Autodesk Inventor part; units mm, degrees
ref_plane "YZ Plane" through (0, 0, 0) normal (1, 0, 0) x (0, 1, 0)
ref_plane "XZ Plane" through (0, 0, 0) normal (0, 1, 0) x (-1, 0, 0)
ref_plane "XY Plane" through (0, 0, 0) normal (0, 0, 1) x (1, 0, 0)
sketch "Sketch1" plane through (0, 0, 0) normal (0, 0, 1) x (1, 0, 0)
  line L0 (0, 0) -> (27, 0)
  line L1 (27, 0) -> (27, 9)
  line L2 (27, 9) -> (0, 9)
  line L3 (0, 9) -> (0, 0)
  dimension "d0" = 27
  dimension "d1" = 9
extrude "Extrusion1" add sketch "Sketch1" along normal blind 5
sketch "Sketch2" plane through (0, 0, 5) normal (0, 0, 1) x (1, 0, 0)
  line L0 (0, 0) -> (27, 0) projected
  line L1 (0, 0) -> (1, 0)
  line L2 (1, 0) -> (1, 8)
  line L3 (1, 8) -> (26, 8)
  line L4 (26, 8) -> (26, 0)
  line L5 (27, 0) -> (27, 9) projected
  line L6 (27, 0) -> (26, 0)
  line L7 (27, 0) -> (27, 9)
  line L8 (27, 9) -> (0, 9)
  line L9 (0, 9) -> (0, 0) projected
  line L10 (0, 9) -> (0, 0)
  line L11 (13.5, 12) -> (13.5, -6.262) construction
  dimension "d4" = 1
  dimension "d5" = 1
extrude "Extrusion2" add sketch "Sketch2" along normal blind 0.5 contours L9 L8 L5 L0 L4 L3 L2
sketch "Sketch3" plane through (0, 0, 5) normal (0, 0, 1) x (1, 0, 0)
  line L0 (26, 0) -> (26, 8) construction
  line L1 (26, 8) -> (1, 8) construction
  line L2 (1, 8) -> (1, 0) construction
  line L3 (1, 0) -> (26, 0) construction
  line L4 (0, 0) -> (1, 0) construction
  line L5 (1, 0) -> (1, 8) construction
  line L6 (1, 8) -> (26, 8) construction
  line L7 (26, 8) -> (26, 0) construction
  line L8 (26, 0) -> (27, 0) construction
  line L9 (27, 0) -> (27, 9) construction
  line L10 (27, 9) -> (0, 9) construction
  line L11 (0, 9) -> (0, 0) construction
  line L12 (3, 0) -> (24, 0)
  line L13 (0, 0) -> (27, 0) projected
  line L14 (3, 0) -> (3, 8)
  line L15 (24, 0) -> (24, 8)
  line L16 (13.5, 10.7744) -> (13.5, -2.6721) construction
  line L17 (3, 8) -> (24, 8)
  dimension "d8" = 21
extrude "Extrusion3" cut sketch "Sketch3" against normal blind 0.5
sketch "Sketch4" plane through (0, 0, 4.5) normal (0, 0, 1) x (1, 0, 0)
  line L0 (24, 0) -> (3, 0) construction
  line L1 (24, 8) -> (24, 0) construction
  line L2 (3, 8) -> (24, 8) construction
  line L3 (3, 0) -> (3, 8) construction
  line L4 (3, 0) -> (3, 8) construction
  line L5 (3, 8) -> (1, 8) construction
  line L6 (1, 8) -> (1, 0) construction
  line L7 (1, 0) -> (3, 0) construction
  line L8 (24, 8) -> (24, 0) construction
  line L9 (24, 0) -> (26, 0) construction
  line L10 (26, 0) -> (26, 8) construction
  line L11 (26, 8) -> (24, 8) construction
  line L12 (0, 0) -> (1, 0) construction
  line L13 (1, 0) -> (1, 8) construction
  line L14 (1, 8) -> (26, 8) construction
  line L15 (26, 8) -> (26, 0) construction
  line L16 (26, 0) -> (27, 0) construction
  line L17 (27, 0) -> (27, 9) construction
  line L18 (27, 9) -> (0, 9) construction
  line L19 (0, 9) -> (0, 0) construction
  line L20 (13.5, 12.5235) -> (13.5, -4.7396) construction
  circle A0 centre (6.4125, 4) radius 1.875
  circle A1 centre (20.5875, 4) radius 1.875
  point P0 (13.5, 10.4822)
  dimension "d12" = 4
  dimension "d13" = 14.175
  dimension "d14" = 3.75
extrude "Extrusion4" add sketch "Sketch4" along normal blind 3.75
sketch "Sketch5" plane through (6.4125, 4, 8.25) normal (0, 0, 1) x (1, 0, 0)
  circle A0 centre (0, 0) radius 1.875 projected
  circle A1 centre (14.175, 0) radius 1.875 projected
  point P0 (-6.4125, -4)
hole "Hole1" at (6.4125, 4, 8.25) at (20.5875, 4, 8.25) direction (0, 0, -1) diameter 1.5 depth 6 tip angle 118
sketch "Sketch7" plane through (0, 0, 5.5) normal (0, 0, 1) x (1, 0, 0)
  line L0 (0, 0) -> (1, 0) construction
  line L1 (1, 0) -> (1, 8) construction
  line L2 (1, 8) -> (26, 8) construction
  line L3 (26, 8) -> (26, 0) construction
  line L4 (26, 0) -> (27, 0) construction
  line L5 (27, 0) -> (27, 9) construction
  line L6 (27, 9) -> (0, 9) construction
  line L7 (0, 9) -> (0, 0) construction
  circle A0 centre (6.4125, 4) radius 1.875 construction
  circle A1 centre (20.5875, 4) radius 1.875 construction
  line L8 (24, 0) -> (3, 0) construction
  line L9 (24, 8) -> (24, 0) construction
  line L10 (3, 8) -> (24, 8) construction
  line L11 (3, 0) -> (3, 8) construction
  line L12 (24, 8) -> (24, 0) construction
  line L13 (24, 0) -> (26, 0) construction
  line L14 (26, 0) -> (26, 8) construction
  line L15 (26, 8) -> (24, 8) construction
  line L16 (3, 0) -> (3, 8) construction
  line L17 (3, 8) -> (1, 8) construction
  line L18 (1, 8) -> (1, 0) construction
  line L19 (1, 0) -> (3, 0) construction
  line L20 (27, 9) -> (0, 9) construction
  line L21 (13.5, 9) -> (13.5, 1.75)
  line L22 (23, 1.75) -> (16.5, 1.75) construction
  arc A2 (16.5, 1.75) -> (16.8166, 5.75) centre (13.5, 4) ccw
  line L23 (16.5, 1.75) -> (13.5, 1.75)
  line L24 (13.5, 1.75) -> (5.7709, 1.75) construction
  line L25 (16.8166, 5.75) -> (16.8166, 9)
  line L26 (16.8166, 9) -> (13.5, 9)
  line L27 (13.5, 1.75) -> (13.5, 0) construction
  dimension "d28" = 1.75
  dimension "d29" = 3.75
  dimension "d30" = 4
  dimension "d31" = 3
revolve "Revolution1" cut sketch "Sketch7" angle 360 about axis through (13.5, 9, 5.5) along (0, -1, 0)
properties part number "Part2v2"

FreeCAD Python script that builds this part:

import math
import FreeCAD as App
import Part
import Sketcher
Q = App.Units.Quantity


def add_polygon(sketch, points):
    """Adds a closed chain of lines whose ends are joined by coincident constraints."""
    first, n = sketch.GeometryCount, len(points)
    for a, b in zip(points, points[1:] + points[:1]):
        sketch.addGeometry(Part.LineSegment(App.Vector(*a, 0), App.Vector(*b, 0)), False)
    for i in range(n):
        sketch.addConstraint(Sketcher.Constraint("Coincident", first + i, 2, first + (i + 1) % n, 1))

doc = App.newDocument("Part")
body = doc.addObject("PartDesign::Body", "Body")

# Sketch on XY plane
sketch1 = doc.addObject("Sketcher::SketchObject", "Sketch")
body.addObject(sketch1)
sketch1.AttachmentSupport = (doc.XY_Plane, [""])
sketch1.MapMode = "FlatFace"
add_polygon(sketch1, [(0, 9), (0, 0), (27, 0), (27, 9)])  # lines 0-3
sketch1.addConstraint([
    Sketcher.Constraint("Vertical", 0),
    Sketcher.Constraint("Horizontal", 1),
    Sketcher.Constraint("Vertical", 2),
    Sketcher.Constraint("Horizontal", 3),
    Sketcher.Constraint("Coincident", 0, 2, -1, 1),
    Sketcher.Constraint("DistanceX", 1, 1, 1, 2, Q("27 mm")),
    Sketcher.Constraint("DistanceY", 0, 2, 0, 1, Q("9 mm")),
])
pad1 = doc.addObject("PartDesign::Pad", "Pad")
body.addObject(pad1)
pad1.Profile = sketch1
pad1.Length = 5

# Sketch on XY plane
sketch2 = doc.addObject("Sketcher::SketchObject", "Sketch001")
body.addObject(sketch2)
sketch2.AttachmentSupport = (doc.XY_Plane, [""])
sketch2.MapMode = "FlatFace"
sketch2.AttachmentOffset = App.Placement(App.Vector(0, 0, 5), App.Rotation())
add_polygon(sketch2, [(0, 9), (0, 0), (1, 0), (1, 8), (26, 8), (26, 0), (27, 0), (27, 9)])  # lines 0-7
sketch2.addConstraint([
    Sketcher.Constraint("Vertical", 0),
    Sketcher.Constraint("Horizontal", 1),
    Sketcher.Constraint("Vertical", 2),
    Sketcher.Constraint("Horizontal", 3),
    Sketcher.Constraint("Vertical", 4),
    Sketcher.Constraint("Horizontal", 5),
    Sketcher.Constraint("Vertical", 6),
    Sketcher.Constraint("Horizontal", 7),
    Sketcher.Constraint("Coincident", 0, 2, -1, 1),
    Sketcher.Constraint("PointOnObject", 4, 2, -1),
    Sketcher.Constraint("Equal", 1, 5),
    Sketcher.Constraint("DistanceX", 1, 1, 1, 2, Q("1 mm")),
    Sketcher.Constraint("DistanceY", 3, 2, 6, 2, Q("1 mm")),
    Sketcher.Constraint("DistanceX", 3, 1, 3, 2, Q("25 mm")),
    Sketcher.Constraint("DistanceY", 0, 2, 0, 1, Q("9 mm")),
])
pad2 = doc.addObject("PartDesign::Pad", "Pad001")
body.addObject(pad2)
pad2.Profile = sketch2
pad2.Length = 0.5

# Sketch on XY plane
sketch3 = doc.addObject("Sketcher::SketchObject", "Sketch002")
body.addObject(sketch3)
sketch3.AttachmentSupport = (doc.XY_Plane, [""])
sketch3.MapMode = "FlatFace"
sketch3.AttachmentOffset = App.Placement(App.Vector(0, 0, 5), App.Rotation())
add_polygon(sketch3, [(3, 8), (3, 0), (24, 0), (24, 8)])  # lines 0-3
sketch3.addConstraint([
    Sketcher.Constraint("Vertical", 0),
    Sketcher.Constraint("Horizontal", 1),
    Sketcher.Constraint("Vertical", 2),
    Sketcher.Constraint("Horizontal", 3),
    Sketcher.Constraint("PointOnObject", 0, 2, -1),
    Sketcher.Constraint("DistanceX", 1, 1, 1, 2, Q("21 mm")),
    Sketcher.Constraint("DistanceY", 0, 2, 0, 1, Q("8 mm")),
    Sketcher.Constraint("DistanceX", -1, 1, 0, 2, Q("3 mm")),
])
pocket1 = doc.addObject("PartDesign::Pocket", "Pocket")
body.addObject(pocket1)
pocket1.Profile = sketch3
pocket1.Length = 0.5

# Sketch on XY plane
sketch4 = doc.addObject("Sketcher::SketchObject", "Sketch003")
body.addObject(sketch4)
sketch4.AttachmentSupport = (doc.XY_Plane, [""])
sketch4.MapMode = "FlatFace"
sketch4.AttachmentOffset = App.Placement(App.Vector(0, 0, 4.5), App.Rotation())
sketch4.addGeometry([
    Part.Circle(App.Vector(6.4, 4, 0), App.Vector(0, 0, 1), 1.9),
    Part.Circle(App.Vector(20.6, 4, 0), App.Vector(0, 0, 1), 1.9),
], False)
sketch4.addConstraint([
    Sketcher.Constraint("Equal", 0, 1),
    Sketcher.Constraint("Horizontal", 0, 3, 1, 3),
    Sketcher.Constraint("Diameter", 0, Q("3.75 mm")),
    Sketcher.Constraint("DistanceY", -1, 1, 0, 3, Q("4 mm")),
    Sketcher.Constraint("DistanceX", 0, 3, 1, 3, Q("14.175 mm")),
    Sketcher.Constraint("DistanceX", -1, 1, 0, 3, Q("6.4125 mm")),
])
pad3 = doc.addObject("PartDesign::Pad", "Pad002")
body.addObject(pad3)
pad3.Profile = sketch4
pad3.Length = 3.75

# Sketch on XY plane
sketch5 = doc.addObject("Sketcher::SketchObject", "Sketch004")
body.addObject(sketch5)
sketch5.AttachmentSupport = (doc.XY_Plane, [""])
sketch5.MapMode = "FlatFace"
sketch5.AttachmentOffset = App.Placement(App.Vector(0, 0, 8.25), App.Rotation())
sketch5.addGeometry([
    Part.Circle(App.Vector(6.4, 4, 0), App.Vector(0, 0, 1), 0.8),
    Part.Circle(App.Vector(20.6, 4, 0), App.Vector(0, 0, 1), 0.8),
], False)
sketch5.addConstraint([
    Sketcher.Constraint("Equal", 0, 1),
    Sketcher.Constraint("Horizontal", 0, 3, 1, 3),
    Sketcher.Constraint("Diameter", 0, Q("1.5 mm")),
    Sketcher.Constraint("DistanceY", -1, 1, 0, 3, Q("4 mm")),
    Sketcher.Constraint("DistanceX", 0, 3, 1, 3, Q("14.175 mm")),
    Sketcher.Constraint("DistanceX", -1, 1, 0, 3, Q("6.4125 mm")),
])
doc.recompute()
hole = doc.addObject("PartDesign::Hole", "Hole")
body.addObject(hole)
hole.Profile = sketch5
hole.ThreadType = "None"
hole.Diameter = 1.5
hole.DepthType = "Dimension"
hole.Depth = 6
hole.DrillPoint = "Angled"
hole.DrillPointAngle = 118

# Sketch on XY plane
sketch6 = doc.addObject("Sketcher::SketchObject", "Sketch005")
body.addObject(sketch6)
sketch6.AttachmentSupport = (doc.XY_Plane, [""])
sketch6.MapMode = "FlatFace"
sketch6.AttachmentOffset = App.Placement(App.Vector(0, 0, 5.5), App.Rotation())
sketch6.addGeometry([
    Part.LineSegment(App.Vector(16.8, 9, 0), App.Vector(13.5, 9, 0)),  # 0
    Part.LineSegment(App.Vector(13.5, 9, 0), App.Vector(13.5, 1.8, 0)),  # 1
    Part.LineSegment(App.Vector(13.5, 1.8, 0), App.Vector(16.5, 1.8, 0)),  # 2
    Part.ArcOfCircle(Part.Circle(App.Vector(13.5, 4, 0), App.Vector(0, 0, 1), 3.8), math.radians(-37), math.radians(28)),  # 3
    Part.LineSegment(App.Vector(16.8, 5.8, 0), App.Vector(16.8, 9, 0)),  # 4
], False)
sketch6.addGeometry(Part.LineSegment(App.Vector(13.5, 9, 0), App.Vector(13.5, 1.8, 0)), True)  # axis
sketch6.addConstraint([
    Sketcher.Constraint("Coincident", 0, 2, 1, 1),
    Sketcher.Constraint("Coincident", 1, 2, 2, 1),
    Sketcher.Constraint("Coincident", 2, 2, 3, 1),
    Sketcher.Constraint("Coincident", 3, 2, 4, 1),
    Sketcher.Constraint("Coincident", 4, 2, 0, 1),
    Sketcher.Constraint("Horizontal", 0),
    Sketcher.Constraint("Vertical", 1),
    Sketcher.Constraint("Horizontal", 2),
    Sketcher.Constraint("Vertical", 4),
    Sketcher.Constraint("Vertical", 5),
    Sketcher.Constraint("Coincident", 5, 1, 0, 2),
    Sketcher.Constraint("Horizontal", 2, 2, 5, 2),
    Sketcher.Constraint("Vertical", 3, 3, 0, 2),
    Sketcher.Constraint("DistanceX", 2, 1, 2, 2, Q("3 mm")),
    Sketcher.Constraint("Radius", 3, Q("3.75 mm")),
    Sketcher.Constraint("DistanceY", -1, 1, 3, 3, Q("4 mm")),
    Sketcher.Constraint("DistanceY", 2, 2, 3, 2, Q("4 mm")),
    Sketcher.Constraint("DistanceY", -1, 1, 0, 2, Q("9 mm")),
    Sketcher.Constraint("DistanceX", -1, 1, 3, 3, Q("13.5 mm")),
])
groove = doc.addObject("PartDesign::Groove", "Groove")
body.addObject(groove)
groove.Profile = sketch6
groove.ReferenceAxis = (sketch6, ["Axis0"])
groove.Angle = 360

doc.recompute()
